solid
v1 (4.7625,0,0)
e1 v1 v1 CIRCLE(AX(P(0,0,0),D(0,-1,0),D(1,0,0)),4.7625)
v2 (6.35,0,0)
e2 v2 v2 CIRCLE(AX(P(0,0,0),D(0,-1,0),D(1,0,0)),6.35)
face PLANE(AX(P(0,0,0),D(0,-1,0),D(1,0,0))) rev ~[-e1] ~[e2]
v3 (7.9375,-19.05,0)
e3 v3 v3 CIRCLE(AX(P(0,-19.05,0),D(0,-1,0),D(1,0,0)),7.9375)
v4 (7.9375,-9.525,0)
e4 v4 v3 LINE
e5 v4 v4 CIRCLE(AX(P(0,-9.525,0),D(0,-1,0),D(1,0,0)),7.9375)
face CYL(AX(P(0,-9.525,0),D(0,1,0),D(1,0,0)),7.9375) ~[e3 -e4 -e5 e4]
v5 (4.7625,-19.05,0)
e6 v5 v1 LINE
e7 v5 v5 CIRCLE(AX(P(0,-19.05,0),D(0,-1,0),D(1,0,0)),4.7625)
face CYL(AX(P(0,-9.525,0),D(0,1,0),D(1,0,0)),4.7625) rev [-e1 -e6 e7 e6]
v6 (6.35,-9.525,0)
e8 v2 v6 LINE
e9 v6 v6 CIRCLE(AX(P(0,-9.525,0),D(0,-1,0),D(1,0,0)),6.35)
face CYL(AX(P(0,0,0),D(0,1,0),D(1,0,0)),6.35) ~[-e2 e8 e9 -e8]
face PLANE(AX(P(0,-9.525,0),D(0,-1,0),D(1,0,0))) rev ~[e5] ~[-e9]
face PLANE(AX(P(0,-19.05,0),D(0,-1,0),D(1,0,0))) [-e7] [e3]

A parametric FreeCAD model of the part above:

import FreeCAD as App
import Part
import Sketcher
Q = App.Units.Quantity

doc = App.newDocument("Part")
body = doc.addObject("PartDesign::Body", "Body")

# Sketch on XZ plane
sketch1 = body.newObject("Sketcher::SketchObject", "Sketch")
sketch1.AttachmentSupport = (doc.getObject("XZ_Plane"), [""])
sketch1.MapMode = "FlatFace"
sketch1.addGeometry([
    Part.Circle(App.Vector(0, 0, 0), App.Vector(0, 0, 1), 6.3),
    Part.Circle(App.Vector(0, 0, 0), App.Vector(0, 0, 1), 4.8),
], False)
sketch1.addConstraint([
    Sketcher.Constraint("Coincident", 0, 3, -1, 1),
    Sketcher.Constraint("Coincident", 1, 3, -1, 1),
    Sketcher.Constraint("Diameter", 0, Q("0.5 in")),
    Sketcher.Constraint("Diameter", 1, Q("0.375 in")),
])
pad1 = body.newObject("PartDesign::Pad", "Pad")
pad1.Profile = sketch1
pad1.Length = Q("0.375 in")

# Sketch on XZ plane
sketch2 = body.newObject("Sketcher::SketchObject", "Sketch001")
sketch2.AttachmentSupport = (doc.getObject("XZ_Plane"), [""])
sketch2.MapMode = "FlatFace"
sketch2.AttachmentOffset = App.Placement(App.Vector(0, 0, 0.375 * 25.4), App.Rotation())
sketch2.addGeometry([
    Part.Circle(App.Vector(0, 0, 0), App.Vector(0, 0, 1), 7.9),
    Part.Circle(App.Vector(0, 0, 0), App.Vector(0, 0, 1), 4.8),
], False)
sketch2.addConstraint([
    Sketcher.Constraint("Coincident", 0, 3, -1, 1),
    Sketcher.Constraint("Coincident", 1, 3, -1, 1),
    Sketcher.Constraint("Diameter", 0, Q("0.625 in")),
    Sketcher.Constraint("Diameter", 1, Q("0.375 in")),
])
pad2 = body.newObject("PartDesign::Pad", "Pad001")
pad2.Profile = sketch2
pad2.Length = Q("0.375 in")

doc.recompute()
